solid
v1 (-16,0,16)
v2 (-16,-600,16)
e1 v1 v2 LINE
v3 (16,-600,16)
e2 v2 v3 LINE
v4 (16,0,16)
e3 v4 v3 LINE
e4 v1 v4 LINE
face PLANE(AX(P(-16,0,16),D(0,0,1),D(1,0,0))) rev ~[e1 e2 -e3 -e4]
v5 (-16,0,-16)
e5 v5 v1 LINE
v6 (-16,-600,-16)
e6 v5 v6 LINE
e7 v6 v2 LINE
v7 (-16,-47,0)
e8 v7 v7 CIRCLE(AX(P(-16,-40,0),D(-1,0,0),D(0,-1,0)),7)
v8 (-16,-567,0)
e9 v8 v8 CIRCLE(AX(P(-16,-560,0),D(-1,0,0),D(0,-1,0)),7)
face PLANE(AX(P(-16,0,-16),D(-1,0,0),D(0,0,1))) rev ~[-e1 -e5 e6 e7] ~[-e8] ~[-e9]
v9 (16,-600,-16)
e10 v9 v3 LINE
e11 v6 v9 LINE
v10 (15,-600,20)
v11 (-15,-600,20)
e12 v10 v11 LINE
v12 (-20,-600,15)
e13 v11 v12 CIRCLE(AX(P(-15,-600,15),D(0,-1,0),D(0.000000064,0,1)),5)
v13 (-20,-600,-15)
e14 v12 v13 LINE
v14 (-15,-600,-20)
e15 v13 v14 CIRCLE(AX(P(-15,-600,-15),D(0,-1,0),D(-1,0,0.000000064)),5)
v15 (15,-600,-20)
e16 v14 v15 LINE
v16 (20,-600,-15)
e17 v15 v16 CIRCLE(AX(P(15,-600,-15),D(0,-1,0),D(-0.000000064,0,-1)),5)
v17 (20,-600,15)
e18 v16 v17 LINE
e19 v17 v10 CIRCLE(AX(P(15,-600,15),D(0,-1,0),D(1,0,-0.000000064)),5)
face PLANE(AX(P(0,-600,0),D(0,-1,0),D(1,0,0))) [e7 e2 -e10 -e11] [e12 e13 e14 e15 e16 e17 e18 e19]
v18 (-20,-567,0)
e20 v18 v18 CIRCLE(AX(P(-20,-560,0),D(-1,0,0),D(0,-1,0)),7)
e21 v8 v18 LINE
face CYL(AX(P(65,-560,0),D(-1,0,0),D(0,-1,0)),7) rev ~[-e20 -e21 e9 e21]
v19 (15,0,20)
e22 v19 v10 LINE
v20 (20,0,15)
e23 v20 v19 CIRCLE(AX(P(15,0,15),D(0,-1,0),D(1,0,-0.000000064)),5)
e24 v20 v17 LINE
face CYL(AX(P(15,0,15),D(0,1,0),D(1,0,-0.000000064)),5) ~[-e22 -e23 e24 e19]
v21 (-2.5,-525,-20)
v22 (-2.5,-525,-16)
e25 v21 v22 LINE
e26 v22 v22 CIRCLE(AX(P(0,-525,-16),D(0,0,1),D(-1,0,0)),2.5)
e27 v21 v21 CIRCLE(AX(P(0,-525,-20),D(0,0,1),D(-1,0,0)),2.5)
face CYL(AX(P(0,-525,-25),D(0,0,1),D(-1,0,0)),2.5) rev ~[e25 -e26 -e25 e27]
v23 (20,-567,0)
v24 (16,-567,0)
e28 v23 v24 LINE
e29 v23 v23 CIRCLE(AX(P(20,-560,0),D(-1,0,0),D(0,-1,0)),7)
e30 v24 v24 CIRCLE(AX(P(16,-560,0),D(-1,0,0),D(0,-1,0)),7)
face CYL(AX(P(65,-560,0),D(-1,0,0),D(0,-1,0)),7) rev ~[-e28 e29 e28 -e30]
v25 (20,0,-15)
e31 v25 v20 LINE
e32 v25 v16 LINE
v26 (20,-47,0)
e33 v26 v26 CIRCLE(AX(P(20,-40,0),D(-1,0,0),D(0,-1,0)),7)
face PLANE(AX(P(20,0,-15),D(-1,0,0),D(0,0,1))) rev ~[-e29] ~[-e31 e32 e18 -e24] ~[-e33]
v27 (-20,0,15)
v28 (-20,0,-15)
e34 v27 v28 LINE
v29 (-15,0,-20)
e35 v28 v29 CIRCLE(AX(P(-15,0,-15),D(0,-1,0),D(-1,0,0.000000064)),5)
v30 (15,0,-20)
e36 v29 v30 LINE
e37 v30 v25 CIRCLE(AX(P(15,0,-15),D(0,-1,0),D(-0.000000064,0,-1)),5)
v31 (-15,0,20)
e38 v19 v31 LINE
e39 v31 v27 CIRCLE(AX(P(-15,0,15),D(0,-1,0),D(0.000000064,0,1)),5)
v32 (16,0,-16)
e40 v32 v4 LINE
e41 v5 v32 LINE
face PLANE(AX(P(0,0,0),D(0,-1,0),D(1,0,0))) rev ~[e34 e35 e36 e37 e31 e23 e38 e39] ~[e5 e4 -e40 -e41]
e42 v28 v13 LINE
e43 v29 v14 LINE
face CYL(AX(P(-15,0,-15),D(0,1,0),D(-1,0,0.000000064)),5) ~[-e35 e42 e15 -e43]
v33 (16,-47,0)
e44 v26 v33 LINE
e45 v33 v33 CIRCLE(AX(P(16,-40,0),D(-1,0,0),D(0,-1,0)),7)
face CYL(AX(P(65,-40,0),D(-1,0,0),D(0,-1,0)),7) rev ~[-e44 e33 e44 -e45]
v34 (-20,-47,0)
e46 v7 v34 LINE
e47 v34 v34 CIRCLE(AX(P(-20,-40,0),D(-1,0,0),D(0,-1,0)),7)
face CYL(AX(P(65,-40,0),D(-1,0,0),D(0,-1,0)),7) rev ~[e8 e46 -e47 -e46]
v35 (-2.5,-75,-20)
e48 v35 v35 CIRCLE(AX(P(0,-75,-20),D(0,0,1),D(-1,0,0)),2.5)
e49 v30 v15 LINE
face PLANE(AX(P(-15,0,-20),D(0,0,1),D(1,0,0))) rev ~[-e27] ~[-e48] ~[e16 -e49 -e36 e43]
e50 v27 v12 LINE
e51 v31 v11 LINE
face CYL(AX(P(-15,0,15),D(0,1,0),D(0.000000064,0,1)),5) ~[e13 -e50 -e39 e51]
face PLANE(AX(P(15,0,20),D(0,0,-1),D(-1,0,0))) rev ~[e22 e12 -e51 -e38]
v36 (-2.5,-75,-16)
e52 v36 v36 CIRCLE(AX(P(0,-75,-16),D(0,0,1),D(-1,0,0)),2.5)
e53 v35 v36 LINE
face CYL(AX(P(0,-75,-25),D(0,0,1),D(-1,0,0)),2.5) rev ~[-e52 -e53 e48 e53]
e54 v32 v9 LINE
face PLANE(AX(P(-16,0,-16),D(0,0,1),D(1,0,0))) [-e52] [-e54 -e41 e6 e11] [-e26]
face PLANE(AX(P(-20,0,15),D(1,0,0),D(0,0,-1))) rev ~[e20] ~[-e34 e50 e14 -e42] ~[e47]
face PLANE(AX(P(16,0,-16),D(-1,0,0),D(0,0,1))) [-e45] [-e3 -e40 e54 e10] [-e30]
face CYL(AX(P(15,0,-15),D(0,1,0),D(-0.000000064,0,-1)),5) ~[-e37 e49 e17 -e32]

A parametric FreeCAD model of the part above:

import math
import FreeCAD as App
import Part
import Sketcher
Q = App.Units.Quantity


def add_polygon(sketch, points):
    """Adds a closed chain of lines whose ends are joined by coincident constraints."""
    first, n = sketch.GeometryCount, len(points)
    for a, b in zip(points, points[1:] + points[:1]):
        sketch.addGeometry(Part.LineSegment(App.Vector(*a, 0), App.Vector(*b, 0)), False)
    for i in range(n):
        sketch.addConstraint(Sketcher.Constraint("Coincident", first + i, 2, first + (i + 1) % n, 1))

doc = App.newDocument("Part")
body = doc.addObject("PartDesign::Body", "Body")

# Sketch on XZ plane
sketch1 = doc.addObject("Sketcher::SketchObject", "Sketch")
body.addObject(sketch1)
sketch1.AttachmentSupport = (doc.XZ_Plane, [""])
sketch1.MapMode = "FlatFace"
sketch1.addGeometry(Part.LineSegment(App.Vector(-15, -20, 0), App.Vector(15, -20, 0)), False)  # 0
sketch1.addGeometry(Part.ArcOfCircle(Part.Circle(App.Vector(15, -15, 0), App.Vector(0, 0, 1), 5), math.radians(-90), math.radians(0)), False)  # 1
sketch1.addGeometry(Part.LineSegment(App.Vector(20, -15, 0), App.Vector(20, 15, 0)), False)  # 2
sketch1.addGeometry(Part.ArcOfCircle(Part.Circle(App.Vector(15, 15, 0), App.Vector(0, 0, 1), 5), math.radians(0), math.radians(90)), False)  # 3
sketch1.addGeometry(Part.LineSegment(App.Vector(15, 20, 0), App.Vector(-15, 20, 0)), False)  # 4
sketch1.addGeometry(Part.ArcOfCircle(Part.Circle(App.Vector(-15, 15, 0), App.Vector(0, 0, 1), 5), math.radians(90), math.radians(180)), False)  # 5
sketch1.addGeometry(Part.LineSegment(App.Vector(-20, 15, 0), App.Vector(-20, -15, 0)), False)  # 6
sketch1.addGeometry(Part.ArcOfCircle(Part.Circle(App.Vector(-15, -15, 0), App.Vector(0, 0, 1), 5), math.radians(180), math.radians(270)), False)  # 7
add_polygon(sketch1, [(16, -16), (-16, -16), (-16, 16), (16, 16)])  # lines 8-11
sketch1.addConstraint([
    Sketcher.Constraint("Tangent", 0, 2, 1, 1),
    Sketcher.Constraint("Tangent", 1, 2, 2, 1),
    Sketcher.Constraint("Tangent", 2, 2, 3, 1),
    Sketcher.Constraint("Tangent", 3, 2, 4, 1),
    Sketcher.Constraint("Tangent", 4, 2, 5, 1),
    Sketcher.Constraint("Tangent", 5, 2, 6, 1),
    Sketcher.Constraint("Tangent", 6, 2, 7, 1),
    Sketcher.Constraint("Tangent", 7, 2, 0, 1),
    Sketcher.Constraint("Horizontal", 0),
    Sketcher.Constraint("Vertical", 2),
    Sketcher.Constraint("Horizontal", 4),
    Sketcher.Constraint("Vertical", 6),
    Sketcher.Constraint("Horizontal", 8),
    Sketcher.Constraint("Vertical", 9),
    Sketcher.Constraint("Horizontal", 10),
    Sketcher.Constraint("Vertical", 11),
    Sketcher.Constraint("Equal", 1, 3),
    Sketcher.Constraint("Equal", 3, 5),
    Sketcher.Constraint("Equal", 5, 7),
    Sketcher.Constraint("Symmetric", 1, 3, 5, 3, -1, 1),
    Sketcher.Constraint("Symmetric", 8, 2, 10, 2, -1, 1),
    Sketcher.Constraint("Equal", 4, 2),
    Sketcher.Constraint("Equal", 10, 9),
    Sketcher.Constraint("Radius", 1, Q("5 mm")),
    Sketcher.Constraint("DistanceX", 0, 1, 0, 2, Q("30 mm")),
    Sketcher.Constraint("DistanceX", 8, 2, 8, 1, Q("32 mm")),
])
pad1 = doc.addObject("PartDesign::Pad", "Pad")
body.addObject(pad1)
pad1.Profile = sketch1
pad1.Length = 600

# Sketch on YZ plane
sketch2 = doc.addObject("Sketcher::SketchObject", "Sketch001")
body.addObject(sketch2)
sketch2.AttachmentSupport = (doc.YZ_Plane, [""])
sketch2.MapMode = "FlatFace"
sketch2.AttachmentOffset = App.Placement(App.Vector(0, 0, 20), App.Rotation())
sketch2.addGeometry(Part.Circle(App.Vector(-560, 0, 0), App.Vector(0, 0, 1), 7), False)
sketch2.addConstraint([
    Sketcher.Constraint("PointOnObject", 0, 3, -1),
    Sketcher.Constraint("Diameter", 0, Q("14 mm")),
    Sketcher.Constraint("DistanceX", 0, 3, -1, 1, Q("560 mm")),
])
doc.recompute()
hole = doc.addObject("PartDesign::Hole", "Hole")
body.addObject(hole)
hole.Profile = sketch2
hole.ThreadType = "None"
hole.Diameter = 14
hole.DepthType = "Dimension"
hole.Depth = 45
hole.DrillPoint = "Flat"

# Sketch on YZ plane
sketch3 = doc.addObject("Sketcher::SketchObject", "Sketch002")
body.addObject(sketch3)
sketch3.AttachmentSupport = (doc.YZ_Plane, [""])
sketch3.MapMode = "FlatFace"
sketch3.AttachmentOffset = App.Placement(App.Vector(0, 0, 20), App.Rotation())
sketch3.addGeometry(Part.Circle(App.Vector(-40, 0, 0), App.Vector(0, 0, 1), 7), False)
sketch3.addConstraint([
    Sketcher.Constraint("PointOnObject", 0, 3, -1),
    Sketcher.Constraint("Diameter", 0, Q("14 mm")),
    Sketcher.Constraint("DistanceX", 0, 3, -1, 1, Q("40 mm")),
])
doc.recompute()
hole2 = doc.addObject("PartDesign::Hole", "Hole001")
body.addObject(hole2)
hole2.Profile = sketch3
hole2.ThreadType = "None"
hole2.Diameter = 14
hole2.DepthType = "Dimension"
hole2.Depth = 45
hole2.DrillPoint = "Flat"

# Sketch on XY plane
sketch4 = doc.addObject("Sketcher::SketchObject", "Sketch003")
body.addObject(sketch4)
sketch4.AttachmentSupport = (doc.XY_Plane, [""])
sketch4.MapMode = "FlatFace"
sketch4.AttachmentOffset = App.Placement(App.Vector(0, 0, -20), App.Rotation())
sketch4.addGeometry(Part.Circle(App.Vector(0, -525, 0), App.Vector(0, 0, 1), 2.5), False)
sketch4.addConstraint([
    Sketcher.Constraint("PointOnObject", 0, 3, -2),
    Sketcher.Constraint("Diameter", 0, Q("5 mm")),
    Sketcher.Constraint("DistanceY", 0, 3, -1, 1, Q("525 mm")),
])
doc.recompute()
hole3 = doc.addObject("PartDesign::Hole", "Hole002")
body.addObject(hole3)
hole3.Profile = sketch4
hole3.ThreadType = "None"
hole3.Diameter = 5
hole3.DepthType = "Dimension"
hole3.Depth = 5
hole3.DrillPoint = "Flat"
hole3.Reversed = True

# Sketch on XY plane
sketch5 = doc.addObject("Sketcher::SketchObject", "Sketch004")
body.addObject(sketch5)
sketch5.AttachmentSupport = (doc.XY_Plane, [""])
sketch5.MapMode = "FlatFace"
sketch5.AttachmentOffset = App.Placement(App.Vector(0, 0, -20), App.Rotation())
sketch5.addGeometry(Part.Circle(App.Vector(0, -75, 0), App.Vector(0, 0, 1), 2.5), False)
sketch5.addConstraint([
    Sketcher.Constraint("PointOnObject", 0, 3, -2),
    Sketcher.Constraint("Diameter", 0, Q("5 mm")),
    Sketcher.Constraint("DistanceY", 0, 3, -1, 1, Q("75 mm")),
])
doc.recompute()
hole4 = doc.addObject("PartDesign::Hole", "Hole003")
body.addObject(hole4)
hole4.Profile = sketch5
hole4.ThreadType = "None"
hole4.Diameter = 5
hole4.DepthType = "Dimension"
hole4.Depth = 5
hole4.DrillPoint = "Flat"
hole4.Reversed = True

doc.recompute()
